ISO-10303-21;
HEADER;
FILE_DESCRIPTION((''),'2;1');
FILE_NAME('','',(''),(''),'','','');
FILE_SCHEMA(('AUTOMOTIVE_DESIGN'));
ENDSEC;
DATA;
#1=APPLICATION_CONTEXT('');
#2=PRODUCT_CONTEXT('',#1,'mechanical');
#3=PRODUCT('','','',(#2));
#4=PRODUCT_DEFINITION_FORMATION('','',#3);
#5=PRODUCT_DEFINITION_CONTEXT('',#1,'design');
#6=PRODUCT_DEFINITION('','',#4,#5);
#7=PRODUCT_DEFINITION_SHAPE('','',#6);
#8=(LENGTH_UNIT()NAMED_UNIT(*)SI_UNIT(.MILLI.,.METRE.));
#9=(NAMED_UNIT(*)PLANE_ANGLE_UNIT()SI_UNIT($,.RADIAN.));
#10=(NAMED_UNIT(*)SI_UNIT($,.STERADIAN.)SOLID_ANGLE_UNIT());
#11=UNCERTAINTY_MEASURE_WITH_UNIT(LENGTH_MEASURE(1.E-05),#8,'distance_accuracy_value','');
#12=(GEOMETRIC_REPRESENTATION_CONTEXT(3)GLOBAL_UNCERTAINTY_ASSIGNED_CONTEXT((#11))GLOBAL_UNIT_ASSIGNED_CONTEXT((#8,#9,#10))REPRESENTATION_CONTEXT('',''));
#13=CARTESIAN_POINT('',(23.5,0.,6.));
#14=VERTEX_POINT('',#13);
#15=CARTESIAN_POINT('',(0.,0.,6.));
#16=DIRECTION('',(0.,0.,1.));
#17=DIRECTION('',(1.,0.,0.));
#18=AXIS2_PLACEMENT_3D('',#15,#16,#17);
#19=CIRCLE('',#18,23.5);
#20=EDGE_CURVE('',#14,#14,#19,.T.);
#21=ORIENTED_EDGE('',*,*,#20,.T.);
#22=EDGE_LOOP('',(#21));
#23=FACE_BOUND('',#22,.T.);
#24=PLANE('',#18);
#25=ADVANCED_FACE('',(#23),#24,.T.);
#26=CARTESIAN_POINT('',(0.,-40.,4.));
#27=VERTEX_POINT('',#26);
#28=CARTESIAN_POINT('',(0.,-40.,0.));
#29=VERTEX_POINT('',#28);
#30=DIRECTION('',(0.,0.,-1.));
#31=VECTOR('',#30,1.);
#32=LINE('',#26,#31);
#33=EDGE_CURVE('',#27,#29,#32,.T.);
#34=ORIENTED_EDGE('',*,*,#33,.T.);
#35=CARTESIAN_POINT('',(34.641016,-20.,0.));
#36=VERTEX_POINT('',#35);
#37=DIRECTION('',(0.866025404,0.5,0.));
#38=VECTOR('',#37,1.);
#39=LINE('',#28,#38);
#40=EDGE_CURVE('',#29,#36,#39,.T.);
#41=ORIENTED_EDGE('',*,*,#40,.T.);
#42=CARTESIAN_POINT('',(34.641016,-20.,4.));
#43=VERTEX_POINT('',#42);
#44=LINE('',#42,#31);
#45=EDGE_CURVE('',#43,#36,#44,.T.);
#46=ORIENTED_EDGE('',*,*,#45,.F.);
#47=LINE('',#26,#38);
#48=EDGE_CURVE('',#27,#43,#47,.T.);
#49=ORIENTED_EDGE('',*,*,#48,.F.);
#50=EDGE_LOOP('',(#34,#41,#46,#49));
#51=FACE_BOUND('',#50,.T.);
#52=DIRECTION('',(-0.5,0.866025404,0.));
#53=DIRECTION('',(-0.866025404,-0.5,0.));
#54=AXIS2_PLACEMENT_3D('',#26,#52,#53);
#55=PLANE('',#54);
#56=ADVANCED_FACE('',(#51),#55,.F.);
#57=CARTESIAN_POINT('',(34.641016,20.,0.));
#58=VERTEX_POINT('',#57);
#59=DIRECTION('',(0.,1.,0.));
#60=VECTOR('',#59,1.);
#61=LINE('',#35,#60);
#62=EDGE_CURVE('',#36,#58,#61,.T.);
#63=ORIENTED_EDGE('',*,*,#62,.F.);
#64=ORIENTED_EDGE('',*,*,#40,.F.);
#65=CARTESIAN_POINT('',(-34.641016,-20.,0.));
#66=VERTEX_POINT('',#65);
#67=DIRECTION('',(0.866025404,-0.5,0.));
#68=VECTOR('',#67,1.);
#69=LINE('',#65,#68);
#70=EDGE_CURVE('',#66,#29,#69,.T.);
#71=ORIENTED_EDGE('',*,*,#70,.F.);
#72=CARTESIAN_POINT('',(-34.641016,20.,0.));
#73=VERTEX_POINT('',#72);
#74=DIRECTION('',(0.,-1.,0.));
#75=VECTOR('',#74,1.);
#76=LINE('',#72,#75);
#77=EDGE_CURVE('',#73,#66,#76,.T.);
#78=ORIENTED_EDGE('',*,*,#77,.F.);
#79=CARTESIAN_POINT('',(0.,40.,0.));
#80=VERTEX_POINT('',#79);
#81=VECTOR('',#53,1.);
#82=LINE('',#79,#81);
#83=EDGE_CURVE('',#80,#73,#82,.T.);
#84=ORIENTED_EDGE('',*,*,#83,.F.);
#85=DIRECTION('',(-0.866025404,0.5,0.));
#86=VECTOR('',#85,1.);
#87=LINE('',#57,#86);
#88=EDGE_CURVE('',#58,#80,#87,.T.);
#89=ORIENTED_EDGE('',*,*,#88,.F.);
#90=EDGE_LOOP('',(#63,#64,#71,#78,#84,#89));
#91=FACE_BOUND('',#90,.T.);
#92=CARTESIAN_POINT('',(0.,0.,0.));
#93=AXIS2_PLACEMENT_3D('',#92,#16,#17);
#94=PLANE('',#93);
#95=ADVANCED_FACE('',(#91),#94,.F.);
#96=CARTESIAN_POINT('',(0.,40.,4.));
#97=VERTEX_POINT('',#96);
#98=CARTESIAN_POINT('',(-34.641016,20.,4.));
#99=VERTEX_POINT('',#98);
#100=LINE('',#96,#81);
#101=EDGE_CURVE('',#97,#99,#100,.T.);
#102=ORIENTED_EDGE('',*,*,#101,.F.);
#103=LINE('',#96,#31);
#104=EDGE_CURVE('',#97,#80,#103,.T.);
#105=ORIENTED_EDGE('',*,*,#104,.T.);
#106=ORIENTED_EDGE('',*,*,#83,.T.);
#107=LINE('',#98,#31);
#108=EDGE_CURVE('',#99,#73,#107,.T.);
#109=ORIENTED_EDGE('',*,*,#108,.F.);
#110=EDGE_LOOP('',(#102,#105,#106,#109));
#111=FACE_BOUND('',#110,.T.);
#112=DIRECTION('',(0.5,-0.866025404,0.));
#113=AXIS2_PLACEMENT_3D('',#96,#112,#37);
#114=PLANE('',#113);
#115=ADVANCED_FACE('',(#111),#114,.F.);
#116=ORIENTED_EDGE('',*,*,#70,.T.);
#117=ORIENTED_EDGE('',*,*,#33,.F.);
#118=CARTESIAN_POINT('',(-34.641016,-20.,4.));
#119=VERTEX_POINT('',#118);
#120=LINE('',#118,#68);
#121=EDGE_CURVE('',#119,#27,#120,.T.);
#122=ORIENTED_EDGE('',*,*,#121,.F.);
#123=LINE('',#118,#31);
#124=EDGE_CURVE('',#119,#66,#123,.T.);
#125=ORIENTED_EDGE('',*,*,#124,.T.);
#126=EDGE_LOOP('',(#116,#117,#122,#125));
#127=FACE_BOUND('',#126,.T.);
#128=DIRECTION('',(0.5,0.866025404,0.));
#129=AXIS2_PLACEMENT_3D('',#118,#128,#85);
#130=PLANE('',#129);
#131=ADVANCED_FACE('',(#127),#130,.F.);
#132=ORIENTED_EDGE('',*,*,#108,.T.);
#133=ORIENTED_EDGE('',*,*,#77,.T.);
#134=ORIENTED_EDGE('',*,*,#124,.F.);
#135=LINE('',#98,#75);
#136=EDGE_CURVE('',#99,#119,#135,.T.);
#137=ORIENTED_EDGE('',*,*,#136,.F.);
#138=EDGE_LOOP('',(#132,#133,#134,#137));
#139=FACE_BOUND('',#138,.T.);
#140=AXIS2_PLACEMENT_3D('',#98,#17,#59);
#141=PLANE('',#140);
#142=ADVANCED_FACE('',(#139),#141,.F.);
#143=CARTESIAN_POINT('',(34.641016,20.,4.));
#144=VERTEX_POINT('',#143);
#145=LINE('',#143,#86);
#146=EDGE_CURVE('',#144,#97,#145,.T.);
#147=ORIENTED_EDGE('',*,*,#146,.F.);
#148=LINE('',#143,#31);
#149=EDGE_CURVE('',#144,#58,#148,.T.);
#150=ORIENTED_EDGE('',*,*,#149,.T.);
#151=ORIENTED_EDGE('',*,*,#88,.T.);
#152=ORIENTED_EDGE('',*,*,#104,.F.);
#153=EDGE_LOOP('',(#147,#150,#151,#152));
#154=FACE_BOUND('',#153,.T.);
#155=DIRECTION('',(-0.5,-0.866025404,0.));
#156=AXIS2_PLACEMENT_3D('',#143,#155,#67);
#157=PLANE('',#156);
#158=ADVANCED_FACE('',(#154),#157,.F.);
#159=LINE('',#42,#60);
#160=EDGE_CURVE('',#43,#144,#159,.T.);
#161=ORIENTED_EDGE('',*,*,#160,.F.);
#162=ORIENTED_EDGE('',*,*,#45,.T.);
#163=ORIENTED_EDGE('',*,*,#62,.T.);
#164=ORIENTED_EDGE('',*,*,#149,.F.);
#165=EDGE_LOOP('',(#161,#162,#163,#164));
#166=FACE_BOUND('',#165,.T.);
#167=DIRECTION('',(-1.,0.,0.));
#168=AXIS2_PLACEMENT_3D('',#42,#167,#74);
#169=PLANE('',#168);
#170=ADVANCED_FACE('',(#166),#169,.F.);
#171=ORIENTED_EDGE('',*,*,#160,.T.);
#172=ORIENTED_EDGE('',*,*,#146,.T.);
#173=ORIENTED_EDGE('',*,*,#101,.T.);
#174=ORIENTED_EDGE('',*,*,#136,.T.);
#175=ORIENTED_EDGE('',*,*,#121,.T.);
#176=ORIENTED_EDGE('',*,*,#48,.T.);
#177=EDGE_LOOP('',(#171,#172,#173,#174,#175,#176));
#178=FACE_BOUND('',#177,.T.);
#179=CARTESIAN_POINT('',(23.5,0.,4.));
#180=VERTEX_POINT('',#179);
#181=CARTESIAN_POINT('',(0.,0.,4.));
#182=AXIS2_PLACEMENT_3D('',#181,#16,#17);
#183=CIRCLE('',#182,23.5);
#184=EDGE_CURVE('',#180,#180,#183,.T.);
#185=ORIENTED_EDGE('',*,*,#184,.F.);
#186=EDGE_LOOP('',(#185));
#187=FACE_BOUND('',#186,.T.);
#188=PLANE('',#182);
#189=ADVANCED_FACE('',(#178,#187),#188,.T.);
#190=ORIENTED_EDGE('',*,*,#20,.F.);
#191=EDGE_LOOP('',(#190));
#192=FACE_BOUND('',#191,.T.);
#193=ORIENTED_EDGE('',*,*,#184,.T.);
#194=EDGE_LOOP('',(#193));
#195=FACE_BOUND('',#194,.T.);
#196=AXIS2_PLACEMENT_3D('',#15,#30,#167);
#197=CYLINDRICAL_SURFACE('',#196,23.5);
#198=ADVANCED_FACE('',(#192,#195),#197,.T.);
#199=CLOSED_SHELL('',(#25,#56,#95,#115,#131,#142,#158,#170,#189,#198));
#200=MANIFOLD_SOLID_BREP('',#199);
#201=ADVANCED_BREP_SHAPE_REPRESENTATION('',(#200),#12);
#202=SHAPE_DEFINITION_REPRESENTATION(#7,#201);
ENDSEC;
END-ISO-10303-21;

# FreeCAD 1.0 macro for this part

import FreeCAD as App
import Part
import Sketcher
from FreeCAD import Vector
Q = App.Units.Quantity


def add_polygon(sketch, points):
    """Adds a closed chain of lines whose ends are joined by coincident constraints."""
    first, n = sketch.GeometryCount, len(points)
    for a, b in zip(points, points[1:] + points[:1]):
        sketch.addGeometry(Part.LineSegment(App.Vector(*a, 0), App.Vector(*b, 0)), False)
    for i in range(n):
        sketch.addConstraint(Sketcher.Constraint("Coincident", first + i, 2, first + (i + 1) % n, 1))

doc = App.newDocument("Part")
body = doc.addObject("PartDesign::Body", "Body")

sketch1 = doc.addObject("Sketcher::SketchObject", "Sketch")
body.addObject(sketch1)
sketch1.AttachmentSupport = (doc.XY_Plane, [""])
sketch1.MapMode = "FlatFace"
add_polygon(sketch1, [(35, 20), (0, 40), (-35, 20), (-35, -20), (0, -40), (35, -20)])
sketch1.addGeometry(Part.Circle(Vector(0, 0, 0), Vector(0, 0, 1), 24), False)
sketch1.addConstraint([
    Sketcher.Constraint("Vertical", 2),
    Sketcher.Constraint("Vertical", 5),
    Sketcher.Constraint("Coincident", 6, 3, -1, 1),
    Sketcher.Constraint("Symmetric", 0, 2, 3, 2, -1, 1),
    Sketcher.Constraint("Symmetric", 1, 2, 4, 2, -1, 1),
    Sketcher.Constraint("PointOnObject", 0, 2, -2),
    Sketcher.Constraint("Parallel", 0, 3),
    Sketcher.Constraint("Horizontal", 2, 2, 4, 2),
    Sketcher.Constraint("Diameter", 6, Q("47 mm")),
    Sketcher.Constraint("DistanceY", 2, 2, 2, 1, Q("40 mm")),
    Sketcher.Constraint("Angle", 0, Q("150 deg")),
    Sketcher.Constraint("Distance", 0, Q("40 mm")),
])
pad1 = doc.addObject("PartDesign::Pad", "Pad")
body.addObject(pad1)
pad1.Profile = sketch1
pad1.Length = 4

sketch2 = doc.addObject("Sketcher::SketchObject", "Sketch001")
body.addObject(sketch2)
sketch2.AttachmentSupport = (doc.XY_Plane, [""])
sketch2.MapMode = "FlatFace"
sketch2.addGeometry(Part.Circle(Vector(0, 0, 0), Vector(0, 0, 1), 24), False)
sketch2.addConstraint([
    Sketcher.Constraint("Coincident", 0, 3, -1, 1),
    Sketcher.Constraint("Diameter", 0, Q("47 mm")),
])
pad2 = doc.addObject("PartDesign::Pad", "Pad001")
body.addObject(pad2)
pad2.Profile = sketch2
pad2.Length = 6

doc.recompute()
